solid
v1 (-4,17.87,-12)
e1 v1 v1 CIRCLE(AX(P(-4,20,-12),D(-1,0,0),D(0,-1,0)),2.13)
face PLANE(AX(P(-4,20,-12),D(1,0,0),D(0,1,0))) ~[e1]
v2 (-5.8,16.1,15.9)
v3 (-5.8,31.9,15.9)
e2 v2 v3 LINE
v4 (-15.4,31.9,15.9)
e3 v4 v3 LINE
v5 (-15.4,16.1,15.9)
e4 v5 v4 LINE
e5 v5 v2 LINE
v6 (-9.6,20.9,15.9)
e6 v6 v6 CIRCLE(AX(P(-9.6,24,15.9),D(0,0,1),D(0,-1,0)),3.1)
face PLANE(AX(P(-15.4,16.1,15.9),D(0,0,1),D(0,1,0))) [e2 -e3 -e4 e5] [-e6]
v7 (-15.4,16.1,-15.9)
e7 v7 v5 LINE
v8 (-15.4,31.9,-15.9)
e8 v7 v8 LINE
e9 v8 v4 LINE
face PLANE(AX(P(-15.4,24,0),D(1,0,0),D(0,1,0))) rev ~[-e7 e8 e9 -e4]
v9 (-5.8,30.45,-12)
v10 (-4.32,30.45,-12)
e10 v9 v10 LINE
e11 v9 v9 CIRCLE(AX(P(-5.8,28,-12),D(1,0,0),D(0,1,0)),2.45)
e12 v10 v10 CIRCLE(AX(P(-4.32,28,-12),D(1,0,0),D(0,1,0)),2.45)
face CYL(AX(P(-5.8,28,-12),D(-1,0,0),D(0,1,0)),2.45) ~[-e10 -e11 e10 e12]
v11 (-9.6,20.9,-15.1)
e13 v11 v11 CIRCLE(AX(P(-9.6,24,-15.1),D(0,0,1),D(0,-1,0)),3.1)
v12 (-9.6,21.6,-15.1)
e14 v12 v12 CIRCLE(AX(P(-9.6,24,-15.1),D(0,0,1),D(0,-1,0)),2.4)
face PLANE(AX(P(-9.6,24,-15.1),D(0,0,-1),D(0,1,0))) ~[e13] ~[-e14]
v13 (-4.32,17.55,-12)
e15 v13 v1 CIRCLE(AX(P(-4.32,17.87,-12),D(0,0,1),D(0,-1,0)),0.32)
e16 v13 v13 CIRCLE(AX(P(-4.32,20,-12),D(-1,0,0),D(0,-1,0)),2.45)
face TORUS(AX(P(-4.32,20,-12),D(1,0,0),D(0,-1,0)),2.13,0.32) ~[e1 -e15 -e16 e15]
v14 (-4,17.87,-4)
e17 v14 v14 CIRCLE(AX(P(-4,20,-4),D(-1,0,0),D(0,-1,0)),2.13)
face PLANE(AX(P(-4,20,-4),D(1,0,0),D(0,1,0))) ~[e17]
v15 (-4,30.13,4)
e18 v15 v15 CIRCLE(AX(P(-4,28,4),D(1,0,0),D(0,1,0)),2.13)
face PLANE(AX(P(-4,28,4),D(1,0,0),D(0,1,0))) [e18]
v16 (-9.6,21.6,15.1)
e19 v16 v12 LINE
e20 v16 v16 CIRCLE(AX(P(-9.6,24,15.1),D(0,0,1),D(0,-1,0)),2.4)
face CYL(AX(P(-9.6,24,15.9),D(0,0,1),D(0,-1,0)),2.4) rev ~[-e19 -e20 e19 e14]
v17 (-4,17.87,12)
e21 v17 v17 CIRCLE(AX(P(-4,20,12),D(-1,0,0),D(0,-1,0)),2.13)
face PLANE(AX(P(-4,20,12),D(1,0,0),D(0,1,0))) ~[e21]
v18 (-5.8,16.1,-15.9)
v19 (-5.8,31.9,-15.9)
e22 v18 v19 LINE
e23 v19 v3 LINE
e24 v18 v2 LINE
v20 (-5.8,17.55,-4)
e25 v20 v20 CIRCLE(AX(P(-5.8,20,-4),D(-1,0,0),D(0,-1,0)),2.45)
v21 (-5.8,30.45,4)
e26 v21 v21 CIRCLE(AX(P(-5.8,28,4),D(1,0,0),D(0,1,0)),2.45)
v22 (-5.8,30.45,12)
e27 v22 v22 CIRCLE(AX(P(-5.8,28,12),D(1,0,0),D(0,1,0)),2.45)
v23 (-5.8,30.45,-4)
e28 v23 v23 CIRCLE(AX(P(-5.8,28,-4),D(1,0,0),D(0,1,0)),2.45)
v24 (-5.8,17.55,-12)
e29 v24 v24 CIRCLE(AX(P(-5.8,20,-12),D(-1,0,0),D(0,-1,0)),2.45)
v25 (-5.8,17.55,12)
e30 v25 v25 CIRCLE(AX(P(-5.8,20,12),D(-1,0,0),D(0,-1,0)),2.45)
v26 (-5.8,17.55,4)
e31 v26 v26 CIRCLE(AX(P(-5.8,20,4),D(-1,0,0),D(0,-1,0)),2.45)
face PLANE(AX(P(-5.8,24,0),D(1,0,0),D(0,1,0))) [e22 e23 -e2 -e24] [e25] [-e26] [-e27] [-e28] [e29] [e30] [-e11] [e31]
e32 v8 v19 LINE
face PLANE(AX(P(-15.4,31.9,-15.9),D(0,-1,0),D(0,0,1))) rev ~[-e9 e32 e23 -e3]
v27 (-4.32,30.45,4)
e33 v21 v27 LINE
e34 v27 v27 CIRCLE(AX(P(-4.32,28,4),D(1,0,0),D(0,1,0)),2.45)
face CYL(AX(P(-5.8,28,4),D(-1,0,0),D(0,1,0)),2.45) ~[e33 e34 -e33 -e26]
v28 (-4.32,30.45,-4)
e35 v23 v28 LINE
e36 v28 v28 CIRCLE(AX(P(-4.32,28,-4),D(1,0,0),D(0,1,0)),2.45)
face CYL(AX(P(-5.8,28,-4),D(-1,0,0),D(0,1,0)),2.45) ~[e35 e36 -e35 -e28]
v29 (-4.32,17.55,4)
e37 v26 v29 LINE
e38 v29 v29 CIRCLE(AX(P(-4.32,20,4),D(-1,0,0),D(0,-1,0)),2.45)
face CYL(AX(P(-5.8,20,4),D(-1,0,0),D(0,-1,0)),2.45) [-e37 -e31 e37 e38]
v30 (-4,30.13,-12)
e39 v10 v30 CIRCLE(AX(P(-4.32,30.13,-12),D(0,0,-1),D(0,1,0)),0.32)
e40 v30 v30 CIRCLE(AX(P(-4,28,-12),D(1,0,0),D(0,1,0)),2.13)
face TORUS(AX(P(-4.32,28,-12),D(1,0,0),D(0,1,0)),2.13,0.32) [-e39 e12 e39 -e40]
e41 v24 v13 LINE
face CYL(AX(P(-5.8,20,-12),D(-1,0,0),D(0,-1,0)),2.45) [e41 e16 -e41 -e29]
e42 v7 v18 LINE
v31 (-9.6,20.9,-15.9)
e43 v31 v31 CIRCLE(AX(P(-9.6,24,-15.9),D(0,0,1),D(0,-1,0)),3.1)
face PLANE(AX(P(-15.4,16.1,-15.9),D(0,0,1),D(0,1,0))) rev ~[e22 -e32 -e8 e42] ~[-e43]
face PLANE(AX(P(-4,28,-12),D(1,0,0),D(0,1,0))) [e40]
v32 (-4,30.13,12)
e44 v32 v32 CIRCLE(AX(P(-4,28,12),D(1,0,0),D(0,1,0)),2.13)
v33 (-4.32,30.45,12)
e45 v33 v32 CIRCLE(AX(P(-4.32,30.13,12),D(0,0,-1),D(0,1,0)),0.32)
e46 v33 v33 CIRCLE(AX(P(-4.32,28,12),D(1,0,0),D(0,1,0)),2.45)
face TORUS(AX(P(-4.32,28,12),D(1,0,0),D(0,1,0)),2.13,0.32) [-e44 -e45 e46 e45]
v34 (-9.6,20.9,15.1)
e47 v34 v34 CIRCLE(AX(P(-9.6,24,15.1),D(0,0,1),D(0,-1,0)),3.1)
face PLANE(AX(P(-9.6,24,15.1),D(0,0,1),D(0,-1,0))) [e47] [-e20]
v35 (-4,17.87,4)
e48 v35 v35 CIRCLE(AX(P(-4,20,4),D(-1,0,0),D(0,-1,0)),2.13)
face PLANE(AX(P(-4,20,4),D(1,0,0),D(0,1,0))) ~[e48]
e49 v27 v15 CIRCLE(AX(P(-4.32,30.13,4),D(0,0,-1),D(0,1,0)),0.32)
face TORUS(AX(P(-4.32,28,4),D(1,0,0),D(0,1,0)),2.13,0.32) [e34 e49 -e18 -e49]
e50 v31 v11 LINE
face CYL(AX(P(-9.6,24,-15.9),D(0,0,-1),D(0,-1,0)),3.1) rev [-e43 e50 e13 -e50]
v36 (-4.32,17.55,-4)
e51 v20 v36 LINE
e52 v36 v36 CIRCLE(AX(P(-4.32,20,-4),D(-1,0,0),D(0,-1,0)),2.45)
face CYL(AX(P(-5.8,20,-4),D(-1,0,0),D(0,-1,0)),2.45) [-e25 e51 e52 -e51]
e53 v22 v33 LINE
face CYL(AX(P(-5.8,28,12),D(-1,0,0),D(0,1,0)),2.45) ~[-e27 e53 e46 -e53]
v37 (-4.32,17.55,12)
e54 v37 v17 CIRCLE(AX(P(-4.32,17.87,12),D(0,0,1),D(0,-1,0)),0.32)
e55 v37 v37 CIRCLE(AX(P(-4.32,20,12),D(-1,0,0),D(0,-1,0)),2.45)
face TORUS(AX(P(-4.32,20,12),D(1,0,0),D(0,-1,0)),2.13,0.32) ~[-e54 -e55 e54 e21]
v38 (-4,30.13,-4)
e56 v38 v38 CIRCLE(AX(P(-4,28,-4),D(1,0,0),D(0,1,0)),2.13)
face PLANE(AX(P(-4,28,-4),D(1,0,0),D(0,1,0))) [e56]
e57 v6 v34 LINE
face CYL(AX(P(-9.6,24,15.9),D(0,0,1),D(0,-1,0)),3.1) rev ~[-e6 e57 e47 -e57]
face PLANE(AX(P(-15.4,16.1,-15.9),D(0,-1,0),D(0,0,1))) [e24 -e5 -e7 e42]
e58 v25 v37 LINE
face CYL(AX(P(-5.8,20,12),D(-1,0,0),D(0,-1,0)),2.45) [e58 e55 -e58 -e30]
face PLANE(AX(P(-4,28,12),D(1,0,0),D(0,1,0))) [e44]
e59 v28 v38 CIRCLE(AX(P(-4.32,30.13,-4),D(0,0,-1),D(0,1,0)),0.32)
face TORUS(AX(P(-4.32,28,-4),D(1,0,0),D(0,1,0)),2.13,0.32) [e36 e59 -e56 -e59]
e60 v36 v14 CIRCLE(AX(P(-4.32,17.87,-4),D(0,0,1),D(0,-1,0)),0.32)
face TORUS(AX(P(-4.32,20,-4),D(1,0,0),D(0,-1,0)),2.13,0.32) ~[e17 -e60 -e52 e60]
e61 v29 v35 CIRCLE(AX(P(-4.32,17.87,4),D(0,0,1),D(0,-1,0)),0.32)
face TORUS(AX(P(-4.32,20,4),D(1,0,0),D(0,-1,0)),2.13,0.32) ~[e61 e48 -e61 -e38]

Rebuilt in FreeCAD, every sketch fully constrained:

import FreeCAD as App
import Part
import Sketcher


def edges_at(feature, points):
    """Names of the edges that pass closest to the given points."""
    edges = feature.Shape.Edges
    near = lambda p: min(range(len(edges)), key=lambda i: edges[i].distToShape(Part.Vertex(*p))[0])
    return sorted({f"Edge{near(p) + 1}" for p in points})


def add_polygon(sketch, points):
    """Adds a closed chain of lines whose ends are joined by coincident constraints."""
    first, n = sketch.GeometryCount, len(points)
    for a, b in zip(points, points[1:] + points[:1]):
        sketch.addGeometry(Part.LineSegment(App.Vector(*a, 0), App.Vector(*b, 0)), False)
    for i in range(n):
        sketch.addConstraint(Sketcher.Constraint("Coincident", first + i, 2, first + (i + 1) % n, 1))

doc = App.newDocument("Part")
body = doc.addObject("PartDesign::Body", "Body")

sketch1 = doc.addObject("Sketcher::SketchObject", "Sketch")
body.addObject(sketch1)
sketch1.AttachmentSupport = (doc.YZ_Plane, [""])
sketch1.MapMode = "FlatFace"
add_polygon(sketch1, [(-7.9, 15.9), (-7.9, -15.9), (7.9, -15.9), (7.9, 15.9)])
sketch1.addConstraint(Sketcher.Constraint("Vertical", 0))
sketch1.addConstraint(Sketcher.Constraint("Horizontal", 1))
sketch1.addConstraint(Sketcher.Constraint("Vertical", 2))
sketch1.addConstraint(Sketcher.Constraint("Horizontal", 3))
sketch1.addConstraint(Sketcher.Constraint("Symmetric", 0, 2, 2, 2, -1, 1))
sketch1.addConstraint(Sketcher.Constraint("DistanceX", 1, 1, 1, 2, 15.8))
sketch1.addConstraint(Sketcher.Constraint("DistanceY", 0, 2, 0, 1, 31.8))
pad1 = doc.addObject("PartDesign::Pad", "Pad")
body.addObject(pad1)
pad1.Profile = sketch1
pad1.Length = 9.6

sketch2 = doc.addObject("Sketcher::SketchObject", "Sketch001")
body.addObject(sketch2)
sketch2.AttachmentSupport = (doc.XY_Plane, [""])
sketch2.MapMode = "FlatFace"
sketch2.AttachmentOffset = App.Placement(App.Vector(0, 0, 15.9), App.Rotation())
sketch2.addGeometry(Part.Circle(App.Vector(5.8, 0, 0), App.Vector(0, 0, 1), 2.4), False)
sketch2.addConstraint(Sketcher.Constraint("PointOnObject", 0, 3, -1))
sketch2.addConstraint(Sketcher.Constraint("Diameter", 0, 4.8))
sketch2.addConstraint(Sketcher.Constraint("DistanceX", -1, 1, 0, 3, 5.8))
pocket1 = doc.addObject("PartDesign::Pocket", "Pocket")
body.addObject(pocket1)
pocket1.Profile = sketch2
pocket1.Length = 31.8

sketch3 = doc.addObject("Sketcher::SketchObject", "Sketch002")
body.addObject(sketch3)
sketch3.AttachmentSupport = (doc.XY_Plane, [""])
sketch3.MapMode = "FlatFace"
sketch3.AttachmentOffset = App.Placement(App.Vector(0, 0, 15.9), App.Rotation())
sketch3.addGeometry(Part.Circle(App.Vector(5.8, 0, 0), App.Vector(0, 0, 1), 3.1), False)
sketch3.addConstraint(Sketcher.Constraint("PointOnObject", 0, 3, -1))
sketch3.addConstraint(Sketcher.Constraint("Diameter", 0, 6.2))
sketch3.addConstraint(Sketcher.Constraint("DistanceX", -1, 1, 0, 3, 5.8))
pocket2 = doc.addObject("PartDesign::Pocket", "Pocket001")
body.addObject(pocket2)
pocket2.Profile = sketch3
pocket2.Length = 0.8
doc.recompute()

mirrored = doc.addObject("PartDesign::Mirrored", "Mirrored")
body.addObject(mirrored)
mirrored.Originals = [pocket2]
mirrored.MirrorPlane = (doc.XY_Plane, [""])
body.Tip = mirrored

sketch4 = doc.addObject("Sketcher::SketchObject", "Sketch003")
body.addObject(sketch4)
sketch4.AttachmentSupport = (doc.YZ_Plane, [""])
sketch4.MapMode = "FlatFace"
sketch4.AttachmentOffset = App.Placement(App.Vector(0, 0, 9.6), App.Rotation())
sketch4.addGeometry(Part.Circle(App.Vector(4, 12, 0), App.Vector(0, 0, 1), 2.45), False)
sketch4.addConstraint(Sketcher.Constraint("Diameter", 0, 4.9))
sketch4.addConstraint(Sketcher.Constraint("DistanceX", -1, 1, 0, 3, 4.0))
sketch4.addConstraint(Sketcher.Constraint("DistanceY", -1, 1, 0, 3, 12.0))
pad2 = doc.addObject("PartDesign::Pad", "Pad001")
body.addObject(pad2)
pad2.Profile = sketch4
pad2.Length = 1.8

sketch5 = doc.addObject("Sketcher::SketchObject", "Sketch004")
body.addObject(sketch5)
sketch5.AttachmentSupport = (doc.YZ_Plane, [""])
sketch5.MapMode = "FlatFace"
sketch5.AttachmentOffset = App.Placement(App.Vector(0, 0, 9.6), App.Rotation())
sketch5.addGeometry(Part.Circle(App.Vector(4, 4, 0), App.Vector(0, 0, 1), 2.45), False)
sketch5.addConstraint(Sketcher.Constraint("Diameter", 0, 4.9))
sketch5.addConstraint(Sketcher.Constraint("DistanceX", -1, 1, 0, 3, 4.0))
sketch5.addConstraint(Sketcher.Constraint("DistanceY", -1, 1, 0, 3, 4.0))
pad3 = doc.addObject("PartDesign::Pad", "Pad002")
body.addObject(pad3)
pad3.Profile = sketch5
pad3.Length = 1.8

sketch6 = doc.addObject("Sketcher::SketchObject", "Sketch005")
body.addObject(sketch6)
sketch6.AttachmentSupport = (doc.YZ_Plane, [""])
sketch6.MapMode = "FlatFace"
sketch6.AttachmentOffset = App.Placement(App.Vector(0, 0, 9.6), App.Rotation())
sketch6.addGeometry(Part.Circle(App.Vector(4, -4, 0), App.Vector(0, 0, 1), 2.45), False)
sketch6.addConstraint(Sketcher.Constraint("Diameter", 0, 4.9))
sketch6.addConstraint(Sketcher.Constraint("DistanceX", -1, 1, 0, 3, 4.0))
sketch6.addConstraint(Sketcher.Constraint("DistanceY", 0, 3, -1, 1, 4.0))
pad4 = doc.addObject("PartDesign::Pad", "Pad003")
body.addObject(pad4)
pad4.Profile = sketch6
pad4.Length = 1.8

sketch7 = doc.addObject("Sketcher::SketchObject", "Sketch006")
body.addObject(sketch7)
sketch7.AttachmentSupport = (doc.YZ_Plane, [""])
sketch7.MapMode = "FlatFace"
sketch7.AttachmentOffset = App.Placement(App.Vector(0, 0, 9.6), App.Rotation())
sketch7.addGeometry(Part.Circle(App.Vector(4, -12, 0), App.Vector(0, 0, 1), 2.45), False)
sketch7.addConstraint(Sketcher.Constraint("Diameter", 0, 4.9))
sketch7.addConstraint(Sketcher.Constraint("DistanceX", -1, 1, 0, 3, 4.0))
sketch7.addConstraint(Sketcher.Constraint("DistanceY", 0, 3, -1, 1, 12.0))
pad5 = doc.addObject("PartDesign::Pad", "Pad004")
body.addObject(pad5)
pad5.Profile = sketch7
pad5.Length = 1.8
doc.recompute()

mirrored2 = doc.addObject("PartDesign::Mirrored", "Mirrored001")
body.addObject(mirrored2)
mirrored2.Originals = [pad2, pad3, pad4, pad5]
mirrored2.MirrorPlane = (doc.XZ_Plane, [""])
body.Tip = mirrored2
doc.recompute()

fillet = doc.addObject("PartDesign::Fillet", "Fillet")
body.addObject(fillet)
fillet.Base = (mirrored2, edges_at(mirrored2, [
    (11.4, -1.55, -12),
    (11.4, 1.55, -12),
    (11.4, 1.55, -4),
    (11.4, -1.55, -4),
    (11.4, -1.55, 4),
    (11.4, 1.55, 4),
    (11.4, 1.55, 12),
    (11.4, -1.55, 12),
]))
fillet.Radius = 0.32
body2 = doc.addObject("PartDesign::Body", "Body001")
doc.recompute()

body.Placement = App.Placement(App.Vector(-15.4, 24, 0), App.Rotation(App.Vector(0, 0, 1), 0))
boolean = doc.addObject("PartDesign::Boolean", "Boolean")
body2.addObject(boolean)
boolean.Type = "Fuse"
boolean.addObjects([body])

doc.recompute()
